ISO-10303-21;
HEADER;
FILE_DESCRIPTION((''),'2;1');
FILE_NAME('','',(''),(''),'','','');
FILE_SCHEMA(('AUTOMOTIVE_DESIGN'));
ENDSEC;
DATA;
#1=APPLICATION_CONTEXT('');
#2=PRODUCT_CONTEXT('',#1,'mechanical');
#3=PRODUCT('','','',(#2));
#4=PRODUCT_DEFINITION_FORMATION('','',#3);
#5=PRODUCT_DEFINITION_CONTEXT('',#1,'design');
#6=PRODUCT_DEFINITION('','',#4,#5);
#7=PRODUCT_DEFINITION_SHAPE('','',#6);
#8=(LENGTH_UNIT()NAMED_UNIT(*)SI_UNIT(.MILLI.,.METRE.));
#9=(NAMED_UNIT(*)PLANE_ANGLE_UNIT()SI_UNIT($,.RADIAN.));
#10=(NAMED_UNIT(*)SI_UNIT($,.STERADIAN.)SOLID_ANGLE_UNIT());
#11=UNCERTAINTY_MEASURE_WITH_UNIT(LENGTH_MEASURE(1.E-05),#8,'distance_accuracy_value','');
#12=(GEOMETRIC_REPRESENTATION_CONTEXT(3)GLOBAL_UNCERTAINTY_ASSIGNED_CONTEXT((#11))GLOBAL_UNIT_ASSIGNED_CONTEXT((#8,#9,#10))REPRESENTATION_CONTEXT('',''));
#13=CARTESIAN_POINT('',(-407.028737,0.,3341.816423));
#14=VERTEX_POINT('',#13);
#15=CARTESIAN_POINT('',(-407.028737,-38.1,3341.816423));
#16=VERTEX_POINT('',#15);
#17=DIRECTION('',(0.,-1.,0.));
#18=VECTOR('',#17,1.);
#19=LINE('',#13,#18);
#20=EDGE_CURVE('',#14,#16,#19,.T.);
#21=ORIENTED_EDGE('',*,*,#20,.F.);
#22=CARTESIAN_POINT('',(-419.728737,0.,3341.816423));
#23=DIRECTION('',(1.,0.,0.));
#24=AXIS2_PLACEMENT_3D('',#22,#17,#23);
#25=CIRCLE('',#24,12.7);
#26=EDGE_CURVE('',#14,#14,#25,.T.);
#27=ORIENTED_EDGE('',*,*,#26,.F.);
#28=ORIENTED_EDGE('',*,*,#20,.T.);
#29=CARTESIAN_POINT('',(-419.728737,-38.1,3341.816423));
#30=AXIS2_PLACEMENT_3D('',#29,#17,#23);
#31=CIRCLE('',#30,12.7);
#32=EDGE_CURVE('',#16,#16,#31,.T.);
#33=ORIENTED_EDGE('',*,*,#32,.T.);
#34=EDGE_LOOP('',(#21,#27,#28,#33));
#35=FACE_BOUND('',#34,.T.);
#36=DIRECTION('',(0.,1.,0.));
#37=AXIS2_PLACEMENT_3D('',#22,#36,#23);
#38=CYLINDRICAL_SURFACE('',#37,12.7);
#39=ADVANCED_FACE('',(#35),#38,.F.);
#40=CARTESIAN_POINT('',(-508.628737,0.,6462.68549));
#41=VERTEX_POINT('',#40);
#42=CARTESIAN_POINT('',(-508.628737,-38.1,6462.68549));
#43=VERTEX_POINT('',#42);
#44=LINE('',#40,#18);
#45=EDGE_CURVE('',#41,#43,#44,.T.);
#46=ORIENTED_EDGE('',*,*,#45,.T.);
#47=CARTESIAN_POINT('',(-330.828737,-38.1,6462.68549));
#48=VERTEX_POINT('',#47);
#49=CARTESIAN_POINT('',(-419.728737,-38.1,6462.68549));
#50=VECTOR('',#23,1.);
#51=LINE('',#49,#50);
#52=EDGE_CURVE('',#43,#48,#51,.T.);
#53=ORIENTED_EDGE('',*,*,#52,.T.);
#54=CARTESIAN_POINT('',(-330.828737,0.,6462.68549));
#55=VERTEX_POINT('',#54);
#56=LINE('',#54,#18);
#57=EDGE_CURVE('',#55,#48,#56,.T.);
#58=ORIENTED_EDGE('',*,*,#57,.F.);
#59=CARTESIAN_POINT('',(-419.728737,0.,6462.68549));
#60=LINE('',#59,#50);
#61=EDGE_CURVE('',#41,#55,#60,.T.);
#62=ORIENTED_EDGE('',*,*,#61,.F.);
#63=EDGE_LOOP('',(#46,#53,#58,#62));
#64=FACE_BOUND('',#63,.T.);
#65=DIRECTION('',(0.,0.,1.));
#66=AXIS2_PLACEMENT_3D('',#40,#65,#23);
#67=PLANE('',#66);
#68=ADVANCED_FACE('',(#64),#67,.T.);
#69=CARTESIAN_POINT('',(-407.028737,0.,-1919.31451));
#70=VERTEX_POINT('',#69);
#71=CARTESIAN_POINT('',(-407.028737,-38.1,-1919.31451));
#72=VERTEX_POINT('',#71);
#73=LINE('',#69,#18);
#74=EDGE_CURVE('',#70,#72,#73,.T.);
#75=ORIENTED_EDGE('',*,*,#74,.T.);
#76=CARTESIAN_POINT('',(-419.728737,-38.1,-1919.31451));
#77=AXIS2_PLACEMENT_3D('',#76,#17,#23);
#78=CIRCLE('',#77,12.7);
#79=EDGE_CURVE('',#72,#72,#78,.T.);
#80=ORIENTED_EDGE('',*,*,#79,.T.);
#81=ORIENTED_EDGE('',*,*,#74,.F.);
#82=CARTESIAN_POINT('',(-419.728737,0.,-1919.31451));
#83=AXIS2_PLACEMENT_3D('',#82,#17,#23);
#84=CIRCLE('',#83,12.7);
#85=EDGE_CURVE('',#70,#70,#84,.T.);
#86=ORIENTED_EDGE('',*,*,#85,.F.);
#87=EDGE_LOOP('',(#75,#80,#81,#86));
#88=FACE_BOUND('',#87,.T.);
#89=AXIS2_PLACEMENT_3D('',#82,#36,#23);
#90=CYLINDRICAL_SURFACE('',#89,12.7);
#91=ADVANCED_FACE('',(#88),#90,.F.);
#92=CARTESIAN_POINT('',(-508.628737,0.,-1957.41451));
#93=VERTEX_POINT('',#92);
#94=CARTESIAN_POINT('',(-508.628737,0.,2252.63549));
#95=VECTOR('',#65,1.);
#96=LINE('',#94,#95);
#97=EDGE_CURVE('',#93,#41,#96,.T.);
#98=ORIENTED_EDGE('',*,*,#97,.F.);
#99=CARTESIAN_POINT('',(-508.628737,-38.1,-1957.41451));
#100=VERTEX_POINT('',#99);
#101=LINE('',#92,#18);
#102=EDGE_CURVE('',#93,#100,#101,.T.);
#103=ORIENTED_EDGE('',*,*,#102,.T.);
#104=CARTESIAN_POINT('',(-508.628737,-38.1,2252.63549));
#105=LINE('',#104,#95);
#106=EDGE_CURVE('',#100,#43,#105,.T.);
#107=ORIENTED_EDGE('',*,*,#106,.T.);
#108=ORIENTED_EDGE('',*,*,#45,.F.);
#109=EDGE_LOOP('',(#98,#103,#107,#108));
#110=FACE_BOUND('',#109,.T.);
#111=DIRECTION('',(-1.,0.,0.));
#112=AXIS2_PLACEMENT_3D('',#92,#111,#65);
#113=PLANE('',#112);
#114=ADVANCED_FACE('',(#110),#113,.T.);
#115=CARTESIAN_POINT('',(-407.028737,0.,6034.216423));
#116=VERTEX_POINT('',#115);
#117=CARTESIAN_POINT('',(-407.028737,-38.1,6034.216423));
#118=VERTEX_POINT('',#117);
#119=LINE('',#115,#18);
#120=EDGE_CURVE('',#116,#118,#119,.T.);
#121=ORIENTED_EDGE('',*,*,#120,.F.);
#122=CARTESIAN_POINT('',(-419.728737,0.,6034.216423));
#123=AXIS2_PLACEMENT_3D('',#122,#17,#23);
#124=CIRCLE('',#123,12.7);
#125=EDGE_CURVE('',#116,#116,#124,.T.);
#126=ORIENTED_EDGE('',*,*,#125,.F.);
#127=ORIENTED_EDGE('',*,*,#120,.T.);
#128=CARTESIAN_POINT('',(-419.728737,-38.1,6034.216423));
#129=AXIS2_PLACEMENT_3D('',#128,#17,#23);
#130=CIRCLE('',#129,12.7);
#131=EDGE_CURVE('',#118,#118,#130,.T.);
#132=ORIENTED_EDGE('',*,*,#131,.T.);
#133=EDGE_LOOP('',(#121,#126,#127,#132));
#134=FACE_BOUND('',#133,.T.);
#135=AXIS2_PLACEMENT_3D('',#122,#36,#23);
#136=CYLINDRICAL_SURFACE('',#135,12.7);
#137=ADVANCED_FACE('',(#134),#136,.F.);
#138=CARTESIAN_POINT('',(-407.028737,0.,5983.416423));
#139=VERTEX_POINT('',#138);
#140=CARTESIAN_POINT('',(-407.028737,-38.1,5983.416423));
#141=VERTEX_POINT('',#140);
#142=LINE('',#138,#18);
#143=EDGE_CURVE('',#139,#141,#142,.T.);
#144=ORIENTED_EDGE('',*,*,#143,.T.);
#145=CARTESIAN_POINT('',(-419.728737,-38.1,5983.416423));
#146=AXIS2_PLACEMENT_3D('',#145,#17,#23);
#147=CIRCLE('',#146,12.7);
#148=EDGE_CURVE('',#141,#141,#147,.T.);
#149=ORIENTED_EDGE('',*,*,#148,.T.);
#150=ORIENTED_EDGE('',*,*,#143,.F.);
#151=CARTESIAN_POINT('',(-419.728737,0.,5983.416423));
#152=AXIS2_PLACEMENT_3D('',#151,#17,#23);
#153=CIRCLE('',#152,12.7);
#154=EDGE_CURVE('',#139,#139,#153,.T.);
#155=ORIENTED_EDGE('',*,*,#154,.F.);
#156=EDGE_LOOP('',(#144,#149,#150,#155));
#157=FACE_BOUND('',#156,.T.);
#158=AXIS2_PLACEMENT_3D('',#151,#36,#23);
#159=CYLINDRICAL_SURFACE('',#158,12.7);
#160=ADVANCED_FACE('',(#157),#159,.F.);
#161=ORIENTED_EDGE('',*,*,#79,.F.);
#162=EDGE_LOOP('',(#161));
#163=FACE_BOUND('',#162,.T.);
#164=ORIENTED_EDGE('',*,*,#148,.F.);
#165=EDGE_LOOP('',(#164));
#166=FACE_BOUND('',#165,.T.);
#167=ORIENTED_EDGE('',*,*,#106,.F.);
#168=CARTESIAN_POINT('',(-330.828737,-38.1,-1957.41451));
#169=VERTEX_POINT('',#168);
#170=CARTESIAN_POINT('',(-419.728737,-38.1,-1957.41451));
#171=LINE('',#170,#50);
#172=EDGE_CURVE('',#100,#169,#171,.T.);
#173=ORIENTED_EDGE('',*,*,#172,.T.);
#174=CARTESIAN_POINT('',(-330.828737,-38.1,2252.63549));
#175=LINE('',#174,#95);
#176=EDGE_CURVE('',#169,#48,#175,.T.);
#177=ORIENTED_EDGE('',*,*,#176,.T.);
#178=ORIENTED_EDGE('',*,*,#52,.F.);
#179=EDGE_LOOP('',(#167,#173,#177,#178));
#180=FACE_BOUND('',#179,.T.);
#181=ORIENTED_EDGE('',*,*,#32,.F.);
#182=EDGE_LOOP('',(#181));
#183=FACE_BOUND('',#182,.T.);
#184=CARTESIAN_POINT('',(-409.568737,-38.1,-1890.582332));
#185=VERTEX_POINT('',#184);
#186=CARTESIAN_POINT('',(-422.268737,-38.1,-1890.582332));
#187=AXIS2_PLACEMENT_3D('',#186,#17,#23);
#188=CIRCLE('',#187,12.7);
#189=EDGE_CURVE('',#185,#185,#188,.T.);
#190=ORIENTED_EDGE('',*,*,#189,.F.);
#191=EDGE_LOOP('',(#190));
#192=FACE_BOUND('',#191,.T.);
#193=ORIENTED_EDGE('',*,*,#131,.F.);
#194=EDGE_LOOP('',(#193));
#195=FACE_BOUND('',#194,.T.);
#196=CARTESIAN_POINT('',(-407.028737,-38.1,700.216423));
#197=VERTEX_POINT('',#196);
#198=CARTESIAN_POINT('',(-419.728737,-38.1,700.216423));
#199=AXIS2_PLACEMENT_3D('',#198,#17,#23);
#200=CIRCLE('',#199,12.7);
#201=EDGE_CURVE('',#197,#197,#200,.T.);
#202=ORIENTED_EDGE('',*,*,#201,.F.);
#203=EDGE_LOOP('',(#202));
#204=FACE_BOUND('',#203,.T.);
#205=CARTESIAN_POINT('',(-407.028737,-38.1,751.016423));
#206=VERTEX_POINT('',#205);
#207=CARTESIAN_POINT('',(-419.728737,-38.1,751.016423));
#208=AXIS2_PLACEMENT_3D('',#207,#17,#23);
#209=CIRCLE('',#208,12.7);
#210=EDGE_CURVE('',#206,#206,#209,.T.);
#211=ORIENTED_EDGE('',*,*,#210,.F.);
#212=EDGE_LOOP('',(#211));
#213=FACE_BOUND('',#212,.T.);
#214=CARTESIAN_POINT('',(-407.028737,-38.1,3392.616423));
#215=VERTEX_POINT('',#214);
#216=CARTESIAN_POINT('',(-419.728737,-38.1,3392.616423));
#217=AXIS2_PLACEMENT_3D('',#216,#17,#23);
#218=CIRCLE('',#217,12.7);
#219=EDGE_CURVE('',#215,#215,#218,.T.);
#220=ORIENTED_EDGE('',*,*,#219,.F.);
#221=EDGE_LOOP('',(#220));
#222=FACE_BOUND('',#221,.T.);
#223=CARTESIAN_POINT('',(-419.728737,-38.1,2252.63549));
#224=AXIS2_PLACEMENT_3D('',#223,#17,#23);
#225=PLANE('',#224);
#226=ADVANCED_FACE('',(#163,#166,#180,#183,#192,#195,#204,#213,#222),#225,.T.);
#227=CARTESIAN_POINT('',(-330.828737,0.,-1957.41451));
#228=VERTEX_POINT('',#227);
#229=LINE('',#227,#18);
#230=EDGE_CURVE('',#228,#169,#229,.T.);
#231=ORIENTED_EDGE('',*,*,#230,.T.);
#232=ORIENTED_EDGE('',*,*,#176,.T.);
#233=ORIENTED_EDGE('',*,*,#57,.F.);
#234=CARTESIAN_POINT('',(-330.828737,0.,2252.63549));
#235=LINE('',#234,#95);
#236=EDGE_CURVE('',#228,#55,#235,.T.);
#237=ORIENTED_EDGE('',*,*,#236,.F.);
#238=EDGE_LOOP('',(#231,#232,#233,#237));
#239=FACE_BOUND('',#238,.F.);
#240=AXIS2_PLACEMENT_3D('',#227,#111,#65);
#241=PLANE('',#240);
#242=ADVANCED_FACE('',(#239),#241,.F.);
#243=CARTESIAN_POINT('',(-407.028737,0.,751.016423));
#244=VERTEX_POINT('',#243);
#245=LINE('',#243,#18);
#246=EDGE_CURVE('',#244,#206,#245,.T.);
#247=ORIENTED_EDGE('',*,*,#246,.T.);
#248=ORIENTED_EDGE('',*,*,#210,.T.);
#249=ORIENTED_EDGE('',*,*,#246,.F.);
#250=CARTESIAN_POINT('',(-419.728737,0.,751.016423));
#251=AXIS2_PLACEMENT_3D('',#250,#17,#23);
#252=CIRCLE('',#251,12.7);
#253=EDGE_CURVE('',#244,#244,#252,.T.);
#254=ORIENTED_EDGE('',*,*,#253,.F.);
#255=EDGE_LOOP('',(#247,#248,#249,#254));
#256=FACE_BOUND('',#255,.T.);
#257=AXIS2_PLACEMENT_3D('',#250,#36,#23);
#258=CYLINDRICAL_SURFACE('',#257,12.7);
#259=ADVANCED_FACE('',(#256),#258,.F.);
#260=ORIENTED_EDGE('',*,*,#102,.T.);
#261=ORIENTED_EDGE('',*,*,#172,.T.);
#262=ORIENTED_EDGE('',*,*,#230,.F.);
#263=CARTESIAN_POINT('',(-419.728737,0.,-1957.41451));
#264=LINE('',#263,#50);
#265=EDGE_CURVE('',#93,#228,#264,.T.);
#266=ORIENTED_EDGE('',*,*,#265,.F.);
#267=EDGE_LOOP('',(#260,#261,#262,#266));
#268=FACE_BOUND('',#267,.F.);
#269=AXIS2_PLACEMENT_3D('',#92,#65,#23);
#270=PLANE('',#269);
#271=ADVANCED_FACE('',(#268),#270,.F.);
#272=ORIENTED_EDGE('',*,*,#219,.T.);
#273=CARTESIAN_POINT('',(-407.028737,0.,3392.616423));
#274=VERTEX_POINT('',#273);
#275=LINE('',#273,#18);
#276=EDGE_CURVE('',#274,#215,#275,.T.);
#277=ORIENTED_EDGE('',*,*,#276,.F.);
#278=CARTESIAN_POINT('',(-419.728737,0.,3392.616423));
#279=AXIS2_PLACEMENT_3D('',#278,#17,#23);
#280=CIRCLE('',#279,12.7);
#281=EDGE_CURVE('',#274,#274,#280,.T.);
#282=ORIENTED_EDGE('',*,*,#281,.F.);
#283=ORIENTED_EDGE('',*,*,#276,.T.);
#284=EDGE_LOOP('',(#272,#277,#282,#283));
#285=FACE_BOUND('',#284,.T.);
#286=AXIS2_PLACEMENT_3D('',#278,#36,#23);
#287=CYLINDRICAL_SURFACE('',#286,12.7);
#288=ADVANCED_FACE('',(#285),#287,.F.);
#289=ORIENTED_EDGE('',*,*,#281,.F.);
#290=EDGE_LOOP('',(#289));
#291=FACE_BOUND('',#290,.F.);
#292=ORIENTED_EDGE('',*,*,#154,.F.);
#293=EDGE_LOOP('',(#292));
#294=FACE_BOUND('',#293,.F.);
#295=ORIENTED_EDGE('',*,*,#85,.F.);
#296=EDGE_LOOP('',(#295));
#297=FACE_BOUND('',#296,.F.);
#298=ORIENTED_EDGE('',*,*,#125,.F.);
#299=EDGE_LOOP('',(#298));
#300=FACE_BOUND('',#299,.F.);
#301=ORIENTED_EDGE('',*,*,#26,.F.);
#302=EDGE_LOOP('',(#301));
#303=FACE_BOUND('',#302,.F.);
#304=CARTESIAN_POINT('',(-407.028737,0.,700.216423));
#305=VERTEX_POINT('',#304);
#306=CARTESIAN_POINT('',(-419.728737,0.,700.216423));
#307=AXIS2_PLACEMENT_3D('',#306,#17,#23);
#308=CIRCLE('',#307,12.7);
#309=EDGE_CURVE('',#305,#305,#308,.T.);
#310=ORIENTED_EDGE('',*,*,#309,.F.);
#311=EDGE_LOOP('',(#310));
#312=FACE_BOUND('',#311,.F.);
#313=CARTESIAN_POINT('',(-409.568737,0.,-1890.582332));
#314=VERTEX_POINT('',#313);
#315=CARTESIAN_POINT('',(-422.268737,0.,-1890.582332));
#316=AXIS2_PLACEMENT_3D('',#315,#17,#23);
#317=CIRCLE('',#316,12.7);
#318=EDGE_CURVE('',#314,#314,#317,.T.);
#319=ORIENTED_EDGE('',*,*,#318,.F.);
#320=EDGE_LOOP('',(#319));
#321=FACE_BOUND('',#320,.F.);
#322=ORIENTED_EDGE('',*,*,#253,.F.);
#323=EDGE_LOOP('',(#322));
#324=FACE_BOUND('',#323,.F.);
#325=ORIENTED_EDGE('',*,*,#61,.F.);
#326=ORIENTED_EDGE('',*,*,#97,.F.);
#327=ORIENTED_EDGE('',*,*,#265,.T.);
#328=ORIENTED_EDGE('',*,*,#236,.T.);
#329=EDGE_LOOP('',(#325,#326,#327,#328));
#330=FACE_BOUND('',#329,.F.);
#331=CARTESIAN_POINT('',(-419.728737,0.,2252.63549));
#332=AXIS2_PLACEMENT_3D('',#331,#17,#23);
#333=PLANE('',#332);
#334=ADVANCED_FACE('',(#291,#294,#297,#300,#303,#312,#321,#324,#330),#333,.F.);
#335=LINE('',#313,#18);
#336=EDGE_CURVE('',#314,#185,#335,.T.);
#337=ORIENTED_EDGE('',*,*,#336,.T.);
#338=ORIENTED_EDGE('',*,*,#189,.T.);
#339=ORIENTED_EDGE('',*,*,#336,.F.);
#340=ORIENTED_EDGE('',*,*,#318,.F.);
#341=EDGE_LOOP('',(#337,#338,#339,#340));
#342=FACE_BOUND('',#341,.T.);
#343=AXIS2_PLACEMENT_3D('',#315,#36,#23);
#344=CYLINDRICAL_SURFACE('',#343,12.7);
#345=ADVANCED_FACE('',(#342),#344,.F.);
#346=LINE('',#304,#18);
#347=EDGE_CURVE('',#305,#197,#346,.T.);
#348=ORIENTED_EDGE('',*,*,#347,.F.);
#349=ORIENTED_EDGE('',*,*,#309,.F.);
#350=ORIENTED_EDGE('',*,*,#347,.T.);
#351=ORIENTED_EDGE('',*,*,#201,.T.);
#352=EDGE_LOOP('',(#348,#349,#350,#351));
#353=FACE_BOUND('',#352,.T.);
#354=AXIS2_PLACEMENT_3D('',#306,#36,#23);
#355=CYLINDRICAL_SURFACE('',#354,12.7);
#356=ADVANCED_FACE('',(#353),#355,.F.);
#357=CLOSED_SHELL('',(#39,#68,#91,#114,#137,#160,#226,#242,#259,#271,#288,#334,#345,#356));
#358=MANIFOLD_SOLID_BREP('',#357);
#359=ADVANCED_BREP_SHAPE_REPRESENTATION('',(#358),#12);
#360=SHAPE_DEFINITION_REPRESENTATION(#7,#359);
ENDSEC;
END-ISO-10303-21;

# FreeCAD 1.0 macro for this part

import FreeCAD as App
import Part
import Sketcher
from FreeCAD import Vector
Q = App.Units.Quantity


def add_polygon(sketch, points):
    """Adds a closed chain of lines whose ends are joined by coincident constraints."""
    first, n = sketch.GeometryCount, len(points)
    for a, b in zip(points, points[1:] + points[:1]):
        sketch.addGeometry(Part.LineSegment(App.Vector(*a, 0), App.Vector(*b, 0)), False)
    for i in range(n):
        sketch.addConstraint(Sketcher.Constraint("Coincident", first + i, 2, first + (i + 1) % n, 1))

doc = App.newDocument("Part")
body = doc.addObject("PartDesign::Body", "Body")

# Sketch on XZ plane
sketch1 = body.newObject("Sketcher::SketchObject", "Sketch")
sketch1.AttachmentSupport = (doc.getObject("XZ_Plane"), [""])
sketch1.MapMode = "FlatFace"
add_polygon(sketch1, [(-509, 6463), (-509, -1957), (-331, -1957), (-331, 6463)])  # lines 0-3
sketch1.addGeometry(Part.Circle(Vector(-422, -1891, 0), Vector(0, 0, 1), 13), False)  # 4
sketch1.addGeometry(Part.Circle(Vector(-420, -1919, 0), Vector(0, 0, 1), 13), False)  # 5
sketch1.addGeometry(Part.Circle(Vector(-420, 700, 0), Vector(0, 0, 1), 13), False)  # 6
sketch1.addGeometry(Part.Circle(Vector(-420, 751, 0), Vector(0, 0, 1), 13), False)  # 7
sketch1.addGeometry(Part.Circle(Vector(-420, 3342, 0), Vector(0, 0, 1), 13), False)  # 8
sketch1.addGeometry(Part.Circle(Vector(-420, 3393, 0), Vector(0, 0, 1), 13), False)  # 9
sketch1.addGeometry(Part.Circle(Vector(-420, 5983, 0), Vector(0, 0, 1), 13), False)  # 10
sketch1.addGeometry(Part.Circle(Vector(-420, 6034, 0), Vector(0, 0, 1), 13), False)  # 11
sketch1.addConstraint([
    Sketcher.Constraint("Vertical", 0),
    Sketcher.Constraint("Horizontal", 1),
    Sketcher.Constraint("Vertical", 2),
    Sketcher.Constraint("Horizontal", 3),
    Sketcher.Constraint("Equal", 4, 5),
    Sketcher.Constraint("Equal", 5, 6),
    Sketcher.Constraint("Equal", 6, 7),
    Sketcher.Constraint("Equal", 7, 8),
    Sketcher.Constraint("Equal", 8, 9),
    Sketcher.Constraint("Equal", 9, 10),
    Sketcher.Constraint("Equal", 10, 11),
    Sketcher.Constraint("Vertical", 5, 3, 6, 3),
    Sketcher.Constraint("Vertical", 6, 3, 7, 3),
    Sketcher.Constraint("Vertical", 7, 3, 8, 3),
    Sketcher.Constraint("Vertical", 8, 3, 9, 3),
    Sketcher.Constraint("Vertical", 9, 3, 10, 3),
    Sketcher.Constraint("Vertical", 10, 3, 11, 3),
    Sketcher.Constraint("Diameter", 4, Q("1 in")),
    Sketcher.Constraint("DistanceX", 1, 1, 1, 2, Q("7 in")),
    Sketcher.Constraint("DistanceY", 0, 2, 0, 1, Q("331.5 in")),
    Sketcher.Constraint("DistanceY", 6, 3, 7, 3, Q("2 in")),
    Sketcher.Constraint("DistanceY", 7, 3, 8, 3, Q("102 in")),
    Sketcher.Constraint("DistanceY", 8, 3, 9, 3, Q("2 in")),
    Sketcher.Constraint("DistanceY", 9, 3, 10, 3, Q("102 in")),
    Sketcher.Constraint("DistanceY", 10, 3, 11, 3, Q("2 in")),
    Sketcher.Constraint("DistanceX", 4, 3, 5, 3, Q("0.1 in")),
    Sketcher.Constraint("DistanceX", 0, 2, 5, 3, Q("3.5 in")),
    Sketcher.Constraint("DistanceY", 0, 2, 5, 3, Q("1.5 in")),
    Sketcher.Constraint("DistanceY", 4, 3, -1, 1, Q("1890.582332 mm")),
    Sketcher.Constraint("DistanceY", 5, 3, -1, 1, Q("1919.31451 mm")),
    Sketcher.Constraint("DistanceX", 4, 3, -1, 1, Q("422.268737 mm")),
    Sketcher.Constraint("DistanceY", -1, 1, 6, 3, Q("700.216423 mm")),
])
pad1 = body.newObject("PartDesign::Pad", "Pad")
pad1.Profile = sketch1
pad1.Length = Q("1.5 in")

doc.recompute()
